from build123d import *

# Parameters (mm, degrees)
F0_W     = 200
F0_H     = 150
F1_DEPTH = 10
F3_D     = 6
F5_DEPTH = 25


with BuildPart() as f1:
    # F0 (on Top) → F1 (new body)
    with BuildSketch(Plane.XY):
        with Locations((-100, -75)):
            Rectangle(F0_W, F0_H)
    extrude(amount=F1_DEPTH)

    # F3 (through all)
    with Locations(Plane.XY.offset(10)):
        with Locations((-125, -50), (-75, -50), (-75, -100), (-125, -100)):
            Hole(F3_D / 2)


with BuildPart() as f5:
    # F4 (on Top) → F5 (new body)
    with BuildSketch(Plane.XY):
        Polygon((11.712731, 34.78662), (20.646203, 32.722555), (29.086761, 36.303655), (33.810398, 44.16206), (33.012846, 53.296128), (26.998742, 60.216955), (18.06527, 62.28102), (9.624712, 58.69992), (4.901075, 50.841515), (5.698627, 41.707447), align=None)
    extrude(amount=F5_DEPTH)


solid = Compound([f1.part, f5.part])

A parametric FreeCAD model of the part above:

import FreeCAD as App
import Part
import Sketcher
Q = App.Units.Quantity

doc = App.newDocument("Part")
body = doc.addObject("PartDesign::Body", "Body")

# Sketch on XY plane
sketch1 = body.newObject("Sketcher::SketchObject", "Sketch")
sketch1.AttachmentSupport = (doc.getObject("XY_Plane"), [""])
sketch1.MapMode = "FlatFace"
sketch1.addGeometry(Part.LineSegment(App.Vector(-200, 0, 0), App.Vector(-200, -150, 0)), False)
sketch1.addGeometry(Part.LineSegment(App.Vector(-200, -150, 0), App.Vector(0, -150, 0)), False)
sketch1.addGeometry(Part.LineSegment(App.Vector(0, -150, 0), App.Vector(0, 0, 0)), False)
sketch1.addGeometry(Part.LineSegment(App.Vector(0, 0, 0), App.Vector(-200, 0, 0)), False)
sketch1.addConstraint(Sketcher.Constraint("Coincident", 0, 2, 1, 1))
sketch1.addConstraint(Sketcher.Constraint("Coincident", 1, 2, 2, 1))
sketch1.addConstraint(Sketcher.Constraint("Coincident", 2, 2, 3, 1))
sketch1.addConstraint(Sketcher.Constraint("Coincident", 3, 2, 0, 1))
sketch1.addConstraint(Sketcher.Constraint("Vertical", 0))
sketch1.addConstraint(Sketcher.Constraint("Horizontal", 1))
sketch1.addConstraint(Sketcher.Constraint("Vertical", 2))
sketch1.addConstraint(Sketcher.Constraint("Horizontal", 3))
sketch1.addConstraint(Sketcher.Constraint("Coincident", 2, 2, -1, 1))
sketch1.addConstraint(Sketcher.Constraint("DistanceX", 1, 1, 1, 2, Q("200 mm")))
sketch1.addConstraint(Sketcher.Constraint("DistanceY", 0, 2, 0, 1, Q("150 mm")))
pad1 = body.newObject("PartDesign::Pad", "Pad")
pad1.Profile = sketch1
pad1.Length = 10

# Sketch on XY plane
sketch2 = body.newObject("Sketcher::SketchObject", "Sketch001")
sketch2.AttachmentSupport = (doc.getObject("XY_Plane"), [""])
sketch2.MapMode = "FlatFace"
sketch2.AttachmentOffset = App.Placement(App.Vector(0, 0, 10), App.Rotation())
sketch2.addGeometry(Part.Circle(App.Vector(-125, -50, 0), App.Vector(0, 0, 1), 3), False)
sketch2.addGeometry(Part.Circle(App.Vector(-75, -50, 0), App.Vector(0, 0, 1), 3), False)
sketch2.addGeometry(Part.Circle(App.Vector(-75, -100, 0), App.Vector(0, 0, 1), 3), False)
sketch2.addGeometry(Part.Circle(App.Vector(-125, -100, 0), App.Vector(0, 0, 1), 3), False)
sketch2.addConstraint(Sketcher.Constraint("Equal", 0, 1))
sketch2.addConstraint(Sketcher.Constraint("Equal", 1, 2))
sketch2.addConstraint(Sketcher.Constraint("Equal", 2, 3))
sketch2.addConstraint(Sketcher.Constraint("Horizontal", 0, 3, 1, 3))
sketch2.addConstraint(Sketcher.Constraint("Horizontal", 2, 3, 3, 3))
sketch2.addConstraint(Sketcher.Constraint("Vertical", 1, 3, 2, 3))
sketch2.addConstraint(Sketcher.Constraint("Vertical", 0, 3, 3, 3))
sketch2.addConstraint(Sketcher.Constraint("Diameter", 0, Q("6 mm")))
sketch2.addConstraint(Sketcher.Constraint("DistanceX", 0, 3, -1, 1, Q("125 mm")))
sketch2.addConstraint(Sketcher.Constraint("DistanceY", 0, 3, -1, 1, Q("50 mm")))
sketch2.addConstraint(Sketcher.Constraint("DistanceX", 1, 3, -1, 1, Q("75 mm")))
sketch2.addConstraint(Sketcher.Constraint("DistanceY", 2, 3, -1, 1, Q("100 mm")))
doc.recompute()
hole = body.newObject("PartDesign::Hole", "Hole")
hole.Profile = sketch2
hole.ThreadType = "None"
hole.Diameter = 6
hole.DepthType = "ThroughAll"
body2 = doc.addObject("PartDesign::Body", "Body001")

# Sketch on XY plane
sketch3 = body2.newObject("Sketcher::SketchObject", "Sketch002")
sketch3.AttachmentSupport = (doc.getObject("XY_Plane001"), [""])
sketch3.MapMode = "FlatFace"
sketch3.addGeometry(Part.LineSegment(App.Vector(12, 35, 0), App.Vector(21, 33, 0)), False)
sketch3.addGeometry(Part.LineSegment(App.Vector(21, 33, 0), App.Vector(29, 36, 0)), False)
sketch3.addGeometry(Part.LineSegment(App.Vector(29, 36, 0), App.Vector(34, 44, 0)), False)
sketch3.addGeometry(Part.LineSegment(App.Vector(34, 44, 0), App.Vector(33, 53, 0)), False)
sketch3.addGeometry(Part.LineSegment(App.Vector(33, 53, 0), App.Vector(27, 60, 0)), False)
sketch3.addGeometry(Part.LineSegment(App.Vector(27, 60, 0), App.Vector(18, 62, 0)), False)
sketch3.addGeometry(Part.LineSegment(App.Vector(18, 62, 0), App.Vector(10, 59, 0)), False)
sketch3.addGeometry(Part.LineSegment(App.Vector(10, 59, 0), App.Vector(5, 51, 0)), False)
sketch3.addGeometry(Part.LineSegment(App.Vector(5, 51, 0), App.Vector(6, 42, 0)), False)
sketch3.addGeometry(Part.LineSegment(App.Vector(6, 42, 0), App.Vector(12, 35, 0)), False)
sketch3.addConstraint(Sketcher.Constraint("Coincident", 0, 2, 1, 1))
sketch3.addConstraint(Sketcher.Constraint("Coincident", 1, 2, 2, 1))
sketch3.addConstraint(Sketcher.Constraint("Coincident", 2, 2, 3, 1))
sketch3.addConstraint(Sketcher.Constraint("Coincident", 3, 2, 4, 1))
sketch3.addConstraint(Sketcher.Constraint("Coincident", 4, 2, 5, 1))
sketch3.addConstraint(Sketcher.Constraint("Coincident", 5, 2, 6, 1))
sketch3.addConstraint(Sketcher.Constraint("Coincident", 6, 2, 7, 1))
sketch3.addConstraint(Sketcher.Constraint("Coincident", 7, 2, 8, 1))
sketch3.addConstraint(Sketcher.Constraint("Coincident", 8, 2, 9, 1))
sketch3.addConstraint(Sketcher.Constraint("Coincident", 9, 2, 0, 1))
sketch3.addConstraint(Sketcher.Constraint("Parallel", 0, 5))
sketch3.addConstraint(Sketcher.Constraint("Parallel", 1, 6))
sketch3.addConstraint(Sketcher.Constraint("Parallel", 2, 7))
sketch3.addConstraint(Sketcher.Constraint("Parallel", 3, 8))
sketch3.addConstraint(Sketcher.Constraint("Parallel", 4, 9))
sketch3.addConstraint(Sketcher.Constraint("Equal", 0, 1))
sketch3.addConstraint(Sketcher.Constraint("Equal", 1, 2))
sketch3.addConstraint(Sketcher.Constraint("Equal", 2, 3))
sketch3.addConstraint(Sketcher.Constraint("Equal", 3, 4))
sketch3.addConstraint(Sketcher.Constraint("Equal", 4, 5))
sketch3.addConstraint(Sketcher.Constraint("Equal", 5, 6))
sketch3.addConstraint(Sketcher.Constraint("Equal", 6, 7))
sketch3.addConstraint(Sketcher.Constraint("DistanceY", 0, 2, 1, 2, Q("3.5811 mm")))
sketch3.addConstraint(Sketcher.Constraint("DistanceY", 1, 2, 4, 2, Q("23.9133 mm")))
sketch3.addConstraint(Sketcher.Constraint("Distance", 0, Q("9.168821 mm")))
sketch3.addConstraint(Sketcher.Constraint("DistanceX", -1, 1, 1, 2, Q("29.086761 mm")))
sketch3.addConstraint(Sketcher.Constraint("DistanceY", -1, 1, 2, 2, Q("44.16206 mm")))
sketch3.addConstraint(Sketcher.Constraint("DistanceY", -1, 1, 3, 2, Q("53.296128 mm")))
sketch3.addConstraint(Sketcher.Constraint("DistanceX", -1, 1, 4, 2, Q("26.998742 mm")))
sketch3.addConstraint(Sketcher.Constraint("DistanceX", -1, 1, 5, 2, Q("18.06527 mm")))
pad2 = body2.newObject("PartDesign::Pad", "Pad001")
pad2.Profile = sketch3
pad2.Length = 25

doc.recompute()
